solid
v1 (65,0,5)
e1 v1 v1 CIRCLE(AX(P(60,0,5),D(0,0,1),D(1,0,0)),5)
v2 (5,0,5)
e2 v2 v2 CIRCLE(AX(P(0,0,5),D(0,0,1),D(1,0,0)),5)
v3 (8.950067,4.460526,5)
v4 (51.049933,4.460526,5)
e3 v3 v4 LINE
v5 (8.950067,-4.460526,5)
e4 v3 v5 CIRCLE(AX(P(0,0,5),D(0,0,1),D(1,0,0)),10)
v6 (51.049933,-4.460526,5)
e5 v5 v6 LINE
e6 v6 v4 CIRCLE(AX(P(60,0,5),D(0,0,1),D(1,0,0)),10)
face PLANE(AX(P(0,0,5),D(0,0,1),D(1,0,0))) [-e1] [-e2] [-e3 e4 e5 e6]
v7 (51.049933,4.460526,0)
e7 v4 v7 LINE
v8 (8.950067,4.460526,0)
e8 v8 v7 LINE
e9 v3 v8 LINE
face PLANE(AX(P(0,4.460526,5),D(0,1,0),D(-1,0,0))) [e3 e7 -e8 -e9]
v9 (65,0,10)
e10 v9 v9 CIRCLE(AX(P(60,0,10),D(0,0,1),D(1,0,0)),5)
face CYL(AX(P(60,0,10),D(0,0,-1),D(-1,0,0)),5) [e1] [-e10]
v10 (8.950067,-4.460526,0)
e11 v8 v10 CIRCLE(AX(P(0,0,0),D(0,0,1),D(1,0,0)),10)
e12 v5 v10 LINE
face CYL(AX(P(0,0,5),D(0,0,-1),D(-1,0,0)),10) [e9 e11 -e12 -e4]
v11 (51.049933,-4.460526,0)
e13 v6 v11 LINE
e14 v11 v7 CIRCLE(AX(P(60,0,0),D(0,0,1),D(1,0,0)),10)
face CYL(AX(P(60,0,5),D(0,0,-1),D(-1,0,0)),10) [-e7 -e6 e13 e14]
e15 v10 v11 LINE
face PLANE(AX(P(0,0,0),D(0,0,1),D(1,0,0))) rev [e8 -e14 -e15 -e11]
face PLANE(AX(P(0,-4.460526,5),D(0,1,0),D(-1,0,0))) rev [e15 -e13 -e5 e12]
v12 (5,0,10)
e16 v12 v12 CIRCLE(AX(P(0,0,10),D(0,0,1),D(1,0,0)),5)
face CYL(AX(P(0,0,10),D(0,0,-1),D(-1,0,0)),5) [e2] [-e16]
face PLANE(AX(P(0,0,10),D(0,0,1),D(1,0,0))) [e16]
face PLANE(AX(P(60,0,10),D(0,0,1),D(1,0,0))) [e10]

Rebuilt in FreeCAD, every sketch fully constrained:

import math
import FreeCAD as App
import Part
import Sketcher
from FreeCAD import Vector

doc = App.newDocument("Part")
body = doc.addObject("PartDesign::Body", "Body")

sketch1 = body.newObject("Sketcher::SketchObject", "Sketch")
sketch1.AttachmentSupport = (doc.getObject("XY_Plane"), [""])
sketch1.MapMode = "FlatFace"
sketch1.addGeometry([
    Part.ArcOfCircle(Part.Circle(Vector(0, 0, 0), Vector(0, 0, 1), 10), math.radians(26), math.radians(334)),
    Part.LineSegment(Vector(9, -4, 0), Vector(51, -4, 0)),
    Part.ArcOfCircle(Part.Circle(Vector(60, 0, 0), Vector(0, 0, 1), 10), math.radians(-154), math.radians(154)),
    Part.LineSegment(Vector(51, 4, 0), Vector(9, 4, 0)),
], False)
sketch1.addConstraint([
    Sketcher.Constraint("Coincident", 0, 2, 1, 1),
    Sketcher.Constraint("Coincident", 1, 2, 2, 1),
    Sketcher.Constraint("Coincident", 2, 2, 3, 1),
    Sketcher.Constraint("Coincident", 3, 2, 0, 1),
    Sketcher.Constraint("Horizontal", 1),
    Sketcher.Constraint("Horizontal", 3),
    Sketcher.Constraint("Coincident", 0, 3, -1, 1),
    Sketcher.Constraint("Equal", 0, 2),
    Sketcher.Constraint("Symmetric", 1, 2, 2, 2, -1),
    Sketcher.Constraint("Radius", 0, 10.0),
    Sketcher.Constraint("DistanceX", -1, 1, 2, 3, 60.0),
    Sketcher.Constraint("DistanceX", 1, 1, 1, 2, 42.099865),
])
pad1 = body.newObject("PartDesign::Pad", "Pad")
pad1.Profile = sketch1
pad1.Length = 5

sketch2 = body.newObject("Sketcher::SketchObject", "Sketch001")
sketch2.AttachmentSupport = (doc.getObject("XY_Plane"), [""])
sketch2.MapMode = "FlatFace"
sketch2.AttachmentOffset = App.Placement(Vector(0, 0, 5), App.Rotation())
sketch2.addGeometry(Part.Circle(Vector(60, 0, 0), Vector(0, 0, 1), 5), False)
sketch2.addConstraint([
    Sketcher.Constraint("PointOnObject", 0, 3, -1),
    Sketcher.Constraint("Diameter", 0, 10.0),
    Sketcher.Constraint("DistanceX", -1, 1, 0, 3, 60.0),
])
pad2 = body.newObject("PartDesign::Pad", "Pad001")
pad2.Profile = sketch2
pad2.Length = 5

sketch3 = body.newObject("Sketcher::SketchObject", "Sketch002")
sketch3.AttachmentSupport = (doc.getObject("XY_Plane"), [""])
sketch3.MapMode = "FlatFace"
sketch3.AttachmentOffset = App.Placement(Vector(0, 0, 5), App.Rotation())
sketch3.addGeometry(Part.Circle(Vector(0, 0, 0), Vector(0, 0, 1), 5), False)
sketch3.addConstraint([
    Sketcher.Constraint("Coincident", 0, 3, -1, 1),
    Sketcher.Constraint("Diameter", 0, 10.0),
])
pad3 = body.newObject("PartDesign::Pad", "Pad002")
pad3.Profile = sketch3
pad3.Length = 5

doc.recompute()
